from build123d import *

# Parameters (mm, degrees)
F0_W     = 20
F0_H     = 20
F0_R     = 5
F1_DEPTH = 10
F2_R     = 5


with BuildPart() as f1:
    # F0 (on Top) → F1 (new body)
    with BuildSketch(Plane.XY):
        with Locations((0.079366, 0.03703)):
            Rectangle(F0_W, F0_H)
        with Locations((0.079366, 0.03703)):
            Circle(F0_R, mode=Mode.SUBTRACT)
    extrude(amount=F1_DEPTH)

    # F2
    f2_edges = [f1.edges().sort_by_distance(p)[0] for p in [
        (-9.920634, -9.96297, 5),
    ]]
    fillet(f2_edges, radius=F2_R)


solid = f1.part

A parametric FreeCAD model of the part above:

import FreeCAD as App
import Part
import Sketcher

V = App.Vector
Q = App.Units.Quantity


def edges_at(feature, points):
    """Names of the edges that pass closest to the given points."""
    edges = feature.Shape.Edges
    near = lambda p: min(range(len(edges)), key=lambda i: edges[i].distToShape(Part.Vertex(*p))[0])
    return sorted({f"Edge{near(p) + 1}" for p in points})

doc = App.newDocument("Part")
body = doc.addObject("PartDesign::Body", "Body")

# Sketch on XY plane
sketch1 = body.newObject("Sketcher::SketchObject", "Sketch")
sketch1.AttachmentSupport = (doc.getObject("XY_Plane"), [""])
sketch1.MapMode = "FlatFace"
sketch1.addGeometry([
    Part.LineSegment(V(-10, 10, 0), V(-10, -10, 0)),  # 0
    Part.LineSegment(V(-10, -10, 0), V(10, -10, 0)),  # 1
    Part.LineSegment(V(10, -10, 0), V(10, 10, 0)),  # 2
    Part.LineSegment(V(10, 10, 0), V(-10, 10, 0)),  # 3
    Part.Circle(V(0, 0, 0), V(0, 0, 1), 5),  # 4
], False)
sketch1.addConstraint([
    Sketcher.Constraint("Coincident", 0, 2, 1, 1),
    Sketcher.Constraint("Coincident", 1, 2, 2, 1),
    Sketcher.Constraint("Coincident", 2, 2, 3, 1),
    Sketcher.Constraint("Coincident", 3, 2, 0, 1),
    Sketcher.Constraint("Vertical", 0),
    Sketcher.Constraint("Horizontal", 1),
    Sketcher.Constraint("Vertical", 2),
    Sketcher.Constraint("Horizontal", 3),
    Sketcher.Constraint("Equal", 3, 0),
    Sketcher.Constraint("Diameter", 4, Q("10 mm")),
    Sketcher.Constraint("DistanceX", 1, 1, 1, 2, Q("20 mm")),
    Sketcher.Constraint("DistanceX", 0, 2, 4, 3, Q("10 mm")),
    Sketcher.Constraint("DistanceY", 0, 2, 4, 3, Q("10 mm")),
    Sketcher.Constraint("DistanceY", -1, 1, 4, 3, Q("0.03703 mm")),
    Sketcher.Constraint("DistanceX", -1, 1, 4, 3, Q("0.079366 mm")),
])
pad1 = body.newObject("PartDesign::Pad", "Pad")
pad1.Profile = sketch1
pad1.Length = 10
doc.recompute()

fillet = body.newObject("PartDesign::Fillet", "Fillet")
fillet.Base = (pad1, edges_at(pad1, [(-9.921, -9.963, 5)]))
fillet.Radius = 5

doc.recompute()
